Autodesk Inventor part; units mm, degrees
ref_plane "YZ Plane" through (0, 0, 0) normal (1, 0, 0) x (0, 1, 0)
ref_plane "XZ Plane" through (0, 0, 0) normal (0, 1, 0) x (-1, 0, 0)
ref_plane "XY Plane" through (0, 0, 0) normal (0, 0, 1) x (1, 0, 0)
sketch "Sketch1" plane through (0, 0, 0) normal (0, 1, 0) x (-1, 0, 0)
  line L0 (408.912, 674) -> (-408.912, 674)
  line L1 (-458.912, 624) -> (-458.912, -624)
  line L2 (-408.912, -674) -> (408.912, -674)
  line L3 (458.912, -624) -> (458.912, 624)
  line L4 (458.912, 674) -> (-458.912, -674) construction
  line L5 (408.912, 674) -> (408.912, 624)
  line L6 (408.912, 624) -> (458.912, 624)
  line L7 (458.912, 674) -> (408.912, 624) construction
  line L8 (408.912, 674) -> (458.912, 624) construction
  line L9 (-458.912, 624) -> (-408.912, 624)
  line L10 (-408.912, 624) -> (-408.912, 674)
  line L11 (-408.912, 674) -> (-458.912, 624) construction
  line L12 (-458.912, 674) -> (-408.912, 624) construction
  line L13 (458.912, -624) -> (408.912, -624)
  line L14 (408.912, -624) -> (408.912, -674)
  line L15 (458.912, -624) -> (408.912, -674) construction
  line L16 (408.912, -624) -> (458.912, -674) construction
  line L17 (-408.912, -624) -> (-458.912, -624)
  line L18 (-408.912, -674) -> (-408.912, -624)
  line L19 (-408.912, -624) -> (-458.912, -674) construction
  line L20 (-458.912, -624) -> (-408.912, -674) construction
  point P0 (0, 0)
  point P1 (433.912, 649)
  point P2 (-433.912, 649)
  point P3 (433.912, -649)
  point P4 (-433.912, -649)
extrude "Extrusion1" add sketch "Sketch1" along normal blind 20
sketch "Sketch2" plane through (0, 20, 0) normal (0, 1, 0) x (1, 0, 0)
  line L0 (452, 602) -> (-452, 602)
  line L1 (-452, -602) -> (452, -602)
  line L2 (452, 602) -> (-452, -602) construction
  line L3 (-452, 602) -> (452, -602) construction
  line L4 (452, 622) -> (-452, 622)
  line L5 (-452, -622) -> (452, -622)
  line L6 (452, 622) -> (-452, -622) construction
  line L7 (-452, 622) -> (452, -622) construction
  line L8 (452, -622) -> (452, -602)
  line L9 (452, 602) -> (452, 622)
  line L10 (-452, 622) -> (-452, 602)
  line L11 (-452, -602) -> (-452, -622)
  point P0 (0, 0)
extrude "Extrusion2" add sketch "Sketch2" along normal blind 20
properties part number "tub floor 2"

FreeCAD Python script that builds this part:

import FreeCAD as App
import Part
import Sketcher
Q = App.Units.Quantity


def add_polygon(sketch, points):
    """Adds a closed chain of lines whose ends are joined by coincident constraints."""
    first, n = sketch.GeometryCount, len(points)
    for a, b in zip(points, points[1:] + points[:1]):
        sketch.addGeometry(Part.LineSegment(App.Vector(*a, 0), App.Vector(*b, 0)), False)
    for i in range(n):
        sketch.addConstraint(Sketcher.Constraint("Coincident", first + i, 2, first + (i + 1) % n, 1))

doc = App.newDocument("Part")
body = doc.addObject("PartDesign::Body", "Body")

# Sketch on XZ plane
sketch1 = body.newObject("Sketcher::SketchObject", "Sketch")
sketch1.AttachmentSupport = (doc.getObject("XZ_Plane"), [""])
sketch1.MapMode = "FlatFace"
add_polygon(sketch1, [(-409, 624), (-409, 674), (409, 674), (409, 624), (459, 624), (459, -624), (409, -624), (409, -674), (-409, -674), (-409, -624), (-459, -624), (-459, 624)])  # lines 0-11
sketch1.addConstraint([
    Sketcher.Constraint("Vertical", 0),
    Sketcher.Constraint("Horizontal", 1),
    Sketcher.Constraint("Vertical", 2),
    Sketcher.Constraint("Horizontal", 3),
    Sketcher.Constraint("Vertical", 4),
    Sketcher.Constraint("Horizontal", 5),
    Sketcher.Constraint("Vertical", 6),
    Sketcher.Constraint("Horizontal", 7),
    Sketcher.Constraint("Vertical", 8),
    Sketcher.Constraint("Horizontal", 9),
    Sketcher.Constraint("Vertical", 10),
    Sketcher.Constraint("Horizontal", 11),
    Sketcher.Constraint("Symmetric", 0, 2, 6, 2, -1, 1),
    Sketcher.Constraint("Symmetric", 2, 2, 8, 2, -1, 1),
    Sketcher.Constraint("Symmetric", 4, 2, 10, 2, -1, 1),
    Sketcher.Constraint("Symmetric", 5, 2, 8, 2, -2),
    Sketcher.Constraint("Equal", 11, 0),
    Sketcher.Constraint("DistanceX", 3, 1, 3, 2, Q("50 mm")),
    Sketcher.Constraint("DistanceY", 4, 2, 4, 1, Q("1248 mm")),
    Sketcher.Constraint("DistanceX", 1, 1, 1, 2, Q("817.824 mm")),
])
pad1 = body.newObject("PartDesign::Pad", "Pad")
pad1.Profile = sketch1
pad1.Length = 20
pad1.Reversed = True

# Sketch on XZ plane
sketch2 = body.newObject("Sketcher::SketchObject", "Sketch001")
sketch2.AttachmentSupport = (doc.getObject("XZ_Plane"), [""])
sketch2.MapMode = "FlatFace"
sketch2.AttachmentOffset = App.Placement(App.Vector(0, 0, -20), App.Rotation())
add_polygon(sketch2, [(-452, -602), (452, -602), (452, -622), (-452, -622)])  # lines 0-3
add_polygon(sketch2, [(452, 602), (-452, 602), (-452, 622), (452, 622)])  # lines 4-7
sketch2.addConstraint([
    Sketcher.Constraint("Horizontal", 0),
    Sketcher.Constraint("Vertical", 1),
    Sketcher.Constraint("Horizontal", 2),
    Sketcher.Constraint("Vertical", 3),
    Sketcher.Constraint("Horizontal", 4),
    Sketcher.Constraint("Vertical", 5),
    Sketcher.Constraint("Horizontal", 6),
    Sketcher.Constraint("Vertical", 7),
    Sketcher.Constraint("Symmetric", 0, 2, 4, 2, -1, 1),
    Sketcher.Constraint("Symmetric", 2, 2, 6, 2, -1, 1),
    Sketcher.Constraint("Vertical", 3, 2, 4, 2),
    Sketcher.Constraint("DistanceX", 0, 1, 0, 2, Q("904 mm")),
    Sketcher.Constraint("DistanceY", 1, 2, 1, 1, Q("20 mm")),
    Sketcher.Constraint("DistanceY", 0, 2, -1, 1, Q("602 mm")),
])
pad2 = body.newObject("PartDesign::Pad", "Pad001")
pad2.Profile = sketch2
pad2.Length = 20
pad2.Reversed = True

doc.recompute()
